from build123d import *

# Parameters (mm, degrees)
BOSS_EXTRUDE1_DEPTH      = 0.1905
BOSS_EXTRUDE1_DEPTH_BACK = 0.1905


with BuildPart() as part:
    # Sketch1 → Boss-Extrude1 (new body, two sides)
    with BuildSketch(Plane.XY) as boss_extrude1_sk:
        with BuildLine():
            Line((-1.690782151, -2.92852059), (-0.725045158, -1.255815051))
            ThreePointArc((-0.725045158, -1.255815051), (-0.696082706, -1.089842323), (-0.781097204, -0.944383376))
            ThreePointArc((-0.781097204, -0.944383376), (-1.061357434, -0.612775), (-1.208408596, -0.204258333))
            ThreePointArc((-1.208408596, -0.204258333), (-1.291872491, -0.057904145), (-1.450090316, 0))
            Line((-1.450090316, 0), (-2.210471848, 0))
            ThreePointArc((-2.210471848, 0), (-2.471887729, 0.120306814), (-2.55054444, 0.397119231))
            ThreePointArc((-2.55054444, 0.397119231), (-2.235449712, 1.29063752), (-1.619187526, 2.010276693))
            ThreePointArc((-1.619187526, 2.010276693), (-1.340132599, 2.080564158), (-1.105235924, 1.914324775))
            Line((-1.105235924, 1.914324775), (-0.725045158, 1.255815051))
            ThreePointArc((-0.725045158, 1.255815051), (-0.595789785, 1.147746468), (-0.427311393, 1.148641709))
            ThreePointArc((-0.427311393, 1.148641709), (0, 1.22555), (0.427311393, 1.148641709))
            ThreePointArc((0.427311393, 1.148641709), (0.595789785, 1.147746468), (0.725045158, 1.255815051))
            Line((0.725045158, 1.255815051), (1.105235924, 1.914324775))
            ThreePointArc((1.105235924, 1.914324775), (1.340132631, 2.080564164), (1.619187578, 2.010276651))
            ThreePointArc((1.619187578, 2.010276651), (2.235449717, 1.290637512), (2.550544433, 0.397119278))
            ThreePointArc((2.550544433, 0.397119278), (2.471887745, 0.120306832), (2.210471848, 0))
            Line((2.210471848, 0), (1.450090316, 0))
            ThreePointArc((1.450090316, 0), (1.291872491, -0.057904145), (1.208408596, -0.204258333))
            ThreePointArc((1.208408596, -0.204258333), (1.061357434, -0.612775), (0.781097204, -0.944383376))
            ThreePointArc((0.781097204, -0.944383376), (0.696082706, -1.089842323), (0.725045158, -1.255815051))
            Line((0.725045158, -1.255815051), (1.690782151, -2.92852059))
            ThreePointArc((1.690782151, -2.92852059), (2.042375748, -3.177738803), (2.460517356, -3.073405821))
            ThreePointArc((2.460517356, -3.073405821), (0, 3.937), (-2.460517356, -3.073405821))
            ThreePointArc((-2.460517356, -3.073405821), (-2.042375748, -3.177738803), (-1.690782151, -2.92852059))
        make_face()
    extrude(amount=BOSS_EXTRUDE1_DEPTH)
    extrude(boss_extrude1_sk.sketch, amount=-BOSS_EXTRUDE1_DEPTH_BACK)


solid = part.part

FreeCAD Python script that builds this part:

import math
import FreeCAD as App
import Part
import Sketcher
from FreeCAD import Vector
Q = App.Units.Quantity

doc = App.newDocument("Part")
body = doc.addObject("PartDesign::Body", "Body")

# Sketch on XY plane
sketch1 = doc.addObject("Sketcher::SketchObject", "Sketch")
body.addObject(sketch1)
sketch1.AttachmentSupport = (doc.XY_Plane, [""])
sketch1.MapMode = "FlatFace"
sketch1.addGeometry([
    Part.LineSegment(Vector(-1.69, -2.93, 0), Vector(-0.73, -1.26, 0)),  # 0
    Part.ArcOfCircle(Part.Circle(Vector(-0.94, -1.13, 0), Vector(0, 0, 1), 0.25), math.radians(-30), math.radians(50)),  # 1
    Part.ArcOfCircle(Part.Circle(Vector(0, 0, 0), Vector(0, 0, 1), 1.23), math.radians(-170), math.radians(-130)),  # 2
    Part.ArcOfCircle(Part.Circle(Vector(-1.45, -0.25, 0), Vector(0, 0, 1), 0.25), math.radians(10), math.radians(90)),  # 3
    Part.LineSegment(Vector(-1.45, 0, 0), Vector(-2.21, 0, 0)),  # 4
    Part.ArcOfCircle(Part.Circle(Vector(-2.21, 0.34, 0), Vector(0, 0, 1), 0.34), math.radians(171), math.radians(270)),  # 5
    Part.ArcOfCircle(Part.Circle(Vector(0, 0, 0), Vector(0, 0, 1), 2.58), math.radians(129), math.radians(171)),  # 6
    Part.ArcOfCircle(Part.Circle(Vector(-1.4, 1.74, 0), Vector(0, 0, 1), 0.34), math.radians(30), math.radians(129)),  # 7
    Part.LineSegment(Vector(-1.11, 1.91, 0), Vector(-0.73, 1.26, 0)),  # 8
    Part.ArcOfCircle(Part.Circle(Vector(-0.51, 1.38, 0), Vector(0, 0, 1), 0.25), math.radians(-150), math.radians(-70)),  # 9
    Part.ArcOfCircle(Part.Circle(Vector(0, 0, 0), Vector(0, 0, 1), 1.23), math.radians(70), math.radians(110)),  # 10
    Part.ArcOfCircle(Part.Circle(Vector(0.51, 1.38, 0), Vector(0, 0, 1), 0.25), math.radians(-110), math.radians(-30)),  # 11
    Part.LineSegment(Vector(0.73, 1.26, 0), Vector(1.11, 1.91, 0)),  # 12
    Part.ArcOfCircle(Part.Circle(Vector(1.4, 1.74, 0), Vector(0, 0, 1), 0.34), math.radians(51), math.radians(150)),  # 13
    Part.ArcOfCircle(Part.Circle(Vector(0, 0, 0), Vector(0, 0, 1), 2.58), math.radians(9), math.radians(51)),  # 14
    Part.ArcOfCircle(Part.Circle(Vector(2.21, 0.34, 0), Vector(0, 0, 1), 0.34), math.radians(-90), math.radians(9)),  # 15
    Part.LineSegment(Vector(2.21, 0, 0), Vector(1.45, 0, 0)),  # 16
    Part.ArcOfCircle(Part.Circle(Vector(1.45, -0.25, 0), Vector(0, 0, 1), 0.25), math.radians(90), math.radians(170)),  # 17
    Part.ArcOfCircle(Part.Circle(Vector(0, 0, 0), Vector(0, 0, 1), 1.23), math.radians(-50), math.radians(-10)),  # 18
    Part.ArcOfCircle(Part.Circle(Vector(0.94, -1.13, 0), Vector(0, 0, 1), 0.25), math.radians(130), math.radians(210)),  # 19
    Part.LineSegment(Vector(0.73, -1.26, 0), Vector(1.69, -2.93, 0)),  # 20
    Part.ArcOfCircle(Part.Circle(Vector(2.14, -2.67, 0), Vector(0, 0, 1), 0.52), math.radians(-150), math.radians(-51)),  # 21
    Part.ArcOfCircle(Part.Circle(Vector(0, 0, 0), Vector(0, 0, 1), 3.94), math.radians(-51), math.radians(231)),  # 22
    Part.ArcOfCircle(Part.Circle(Vector(-2.14, -2.67, 0), Vector(0, 0, 1), 0.52), math.radians(-129), math.radians(-30)),  # 23
], False)
sketch1.addConstraint([
    Sketcher.Constraint("Tangent", 0, 2, 1, 1),
    Sketcher.Constraint("Tangent", 1, 2, 2, 2),
    Sketcher.Constraint("Tangent", 2, 1, 3, 1),
    Sketcher.Constraint("Tangent", 3, 2, 4, 1),
    Sketcher.Constraint("Tangent", 4, 2, 5, 2),
    Sketcher.Constraint("Tangent", 5, 1, 6, 2),
    Sketcher.Constraint("Tangent", 6, 1, 7, 2),
    Sketcher.Constraint("Tangent", 7, 1, 8, 1),
    Sketcher.Constraint("Tangent", 8, 2, 9, 1),
    Sketcher.Constraint("Tangent", 9, 2, 10, 2),
    Sketcher.Constraint("Tangent", 10, 1, 11, 1),
    Sketcher.Constraint("Tangent", 11, 2, 12, 1),
    Sketcher.Constraint("Tangent", 12, 2, 13, 2),
    Sketcher.Constraint("Tangent", 13, 1, 14, 2),
    Sketcher.Constraint("Tangent", 14, 1, 15, 2),
    Sketcher.Constraint("Tangent", 15, 1, 16, 1),
    Sketcher.Constraint("Tangent", 16, 2, 17, 1),
    Sketcher.Constraint("Tangent", 17, 2, 18, 2),
    Sketcher.Constraint("Tangent", 18, 1, 19, 1),
    Sketcher.Constraint("Tangent", 19, 2, 20, 1),
    Sketcher.Constraint("Tangent", 20, 2, 21, 1),
    Sketcher.Constraint("Tangent", 21, 2, 22, 1),
    Sketcher.Constraint("Tangent", 22, 2, 23, 1),
    Sketcher.Constraint("Tangent", 23, 2, 0, 1),
    Sketcher.Constraint("Horizontal", 4),
    Sketcher.Constraint("Horizontal", 16),
    Sketcher.Constraint("Coincident", 2, 3, -1, 1),
    Sketcher.Constraint("Coincident", 6, 3, -1, 1),
    Sketcher.Constraint("Coincident", 10, 3, -1, 1),
    Sketcher.Constraint("Coincident", 14, 3, -1, 1),
    Sketcher.Constraint("Coincident", 18, 3, -1, 1),
    Sketcher.Constraint("Coincident", 22, 3, -1, 1),
    Sketcher.Constraint("Equal", 1, 3),
    Sketcher.Constraint("Equal", 5, 7),
    Sketcher.Constraint("Equal", 3, 9),
    Sketcher.Constraint("Equal", 2, 10),
    Sketcher.Constraint("Equal", 9, 11),
    Sketcher.Constraint("Equal", 7, 13),
    Sketcher.Constraint("Equal", 6, 14),
    Sketcher.Constraint("Equal", 13, 15),
    Sketcher.Constraint("Equal", 11, 17),
    Sketcher.Constraint("Equal", 10, 18),
    Sketcher.Constraint("Equal", 17, 19),
    Sketcher.Constraint("Equal", 21, 23),
    Sketcher.Constraint("Symmetric", 0, 2, 11, 2, -1, 1),
    Sketcher.Constraint("Symmetric", 4, 2, 15, 1, -1, 1),
    Sketcher.Constraint("Symmetric", 8, 2, 19, 2, -1, 1),
    Sketcher.Constraint("Symmetric", 8, 2, 11, 2, -2),
    Sketcher.Constraint("Parallel", 0, 12),
    Sketcher.Constraint("Angle", 0, Q("60 deg")),
    Sketcher.Constraint("Radius", 22, Q("0.155 in")),
    Sketcher.Constraint("Radius", 1, Q("0.24511 mm")),
    Sketcher.Constraint("Radius", 2, Q("1.22555 mm")),
    Sketcher.Constraint("Radius", 5, Q("0.34417 mm")),
    Sketcher.Constraint("Radius", 6, Q("2.581275 mm")),
    Sketcher.Constraint("Radius", 21, Q("0.516255 mm")),
])
pad1 = doc.addObject("PartDesign::Pad", "Pad")
body.addObject(pad1)
pad1.Profile = sketch1
pad1.Type = "TwoLengths"
pad1.Length = Q("0.0075 in")
pad1.Length2 = Q("0.0075 in")

doc.recompute()
